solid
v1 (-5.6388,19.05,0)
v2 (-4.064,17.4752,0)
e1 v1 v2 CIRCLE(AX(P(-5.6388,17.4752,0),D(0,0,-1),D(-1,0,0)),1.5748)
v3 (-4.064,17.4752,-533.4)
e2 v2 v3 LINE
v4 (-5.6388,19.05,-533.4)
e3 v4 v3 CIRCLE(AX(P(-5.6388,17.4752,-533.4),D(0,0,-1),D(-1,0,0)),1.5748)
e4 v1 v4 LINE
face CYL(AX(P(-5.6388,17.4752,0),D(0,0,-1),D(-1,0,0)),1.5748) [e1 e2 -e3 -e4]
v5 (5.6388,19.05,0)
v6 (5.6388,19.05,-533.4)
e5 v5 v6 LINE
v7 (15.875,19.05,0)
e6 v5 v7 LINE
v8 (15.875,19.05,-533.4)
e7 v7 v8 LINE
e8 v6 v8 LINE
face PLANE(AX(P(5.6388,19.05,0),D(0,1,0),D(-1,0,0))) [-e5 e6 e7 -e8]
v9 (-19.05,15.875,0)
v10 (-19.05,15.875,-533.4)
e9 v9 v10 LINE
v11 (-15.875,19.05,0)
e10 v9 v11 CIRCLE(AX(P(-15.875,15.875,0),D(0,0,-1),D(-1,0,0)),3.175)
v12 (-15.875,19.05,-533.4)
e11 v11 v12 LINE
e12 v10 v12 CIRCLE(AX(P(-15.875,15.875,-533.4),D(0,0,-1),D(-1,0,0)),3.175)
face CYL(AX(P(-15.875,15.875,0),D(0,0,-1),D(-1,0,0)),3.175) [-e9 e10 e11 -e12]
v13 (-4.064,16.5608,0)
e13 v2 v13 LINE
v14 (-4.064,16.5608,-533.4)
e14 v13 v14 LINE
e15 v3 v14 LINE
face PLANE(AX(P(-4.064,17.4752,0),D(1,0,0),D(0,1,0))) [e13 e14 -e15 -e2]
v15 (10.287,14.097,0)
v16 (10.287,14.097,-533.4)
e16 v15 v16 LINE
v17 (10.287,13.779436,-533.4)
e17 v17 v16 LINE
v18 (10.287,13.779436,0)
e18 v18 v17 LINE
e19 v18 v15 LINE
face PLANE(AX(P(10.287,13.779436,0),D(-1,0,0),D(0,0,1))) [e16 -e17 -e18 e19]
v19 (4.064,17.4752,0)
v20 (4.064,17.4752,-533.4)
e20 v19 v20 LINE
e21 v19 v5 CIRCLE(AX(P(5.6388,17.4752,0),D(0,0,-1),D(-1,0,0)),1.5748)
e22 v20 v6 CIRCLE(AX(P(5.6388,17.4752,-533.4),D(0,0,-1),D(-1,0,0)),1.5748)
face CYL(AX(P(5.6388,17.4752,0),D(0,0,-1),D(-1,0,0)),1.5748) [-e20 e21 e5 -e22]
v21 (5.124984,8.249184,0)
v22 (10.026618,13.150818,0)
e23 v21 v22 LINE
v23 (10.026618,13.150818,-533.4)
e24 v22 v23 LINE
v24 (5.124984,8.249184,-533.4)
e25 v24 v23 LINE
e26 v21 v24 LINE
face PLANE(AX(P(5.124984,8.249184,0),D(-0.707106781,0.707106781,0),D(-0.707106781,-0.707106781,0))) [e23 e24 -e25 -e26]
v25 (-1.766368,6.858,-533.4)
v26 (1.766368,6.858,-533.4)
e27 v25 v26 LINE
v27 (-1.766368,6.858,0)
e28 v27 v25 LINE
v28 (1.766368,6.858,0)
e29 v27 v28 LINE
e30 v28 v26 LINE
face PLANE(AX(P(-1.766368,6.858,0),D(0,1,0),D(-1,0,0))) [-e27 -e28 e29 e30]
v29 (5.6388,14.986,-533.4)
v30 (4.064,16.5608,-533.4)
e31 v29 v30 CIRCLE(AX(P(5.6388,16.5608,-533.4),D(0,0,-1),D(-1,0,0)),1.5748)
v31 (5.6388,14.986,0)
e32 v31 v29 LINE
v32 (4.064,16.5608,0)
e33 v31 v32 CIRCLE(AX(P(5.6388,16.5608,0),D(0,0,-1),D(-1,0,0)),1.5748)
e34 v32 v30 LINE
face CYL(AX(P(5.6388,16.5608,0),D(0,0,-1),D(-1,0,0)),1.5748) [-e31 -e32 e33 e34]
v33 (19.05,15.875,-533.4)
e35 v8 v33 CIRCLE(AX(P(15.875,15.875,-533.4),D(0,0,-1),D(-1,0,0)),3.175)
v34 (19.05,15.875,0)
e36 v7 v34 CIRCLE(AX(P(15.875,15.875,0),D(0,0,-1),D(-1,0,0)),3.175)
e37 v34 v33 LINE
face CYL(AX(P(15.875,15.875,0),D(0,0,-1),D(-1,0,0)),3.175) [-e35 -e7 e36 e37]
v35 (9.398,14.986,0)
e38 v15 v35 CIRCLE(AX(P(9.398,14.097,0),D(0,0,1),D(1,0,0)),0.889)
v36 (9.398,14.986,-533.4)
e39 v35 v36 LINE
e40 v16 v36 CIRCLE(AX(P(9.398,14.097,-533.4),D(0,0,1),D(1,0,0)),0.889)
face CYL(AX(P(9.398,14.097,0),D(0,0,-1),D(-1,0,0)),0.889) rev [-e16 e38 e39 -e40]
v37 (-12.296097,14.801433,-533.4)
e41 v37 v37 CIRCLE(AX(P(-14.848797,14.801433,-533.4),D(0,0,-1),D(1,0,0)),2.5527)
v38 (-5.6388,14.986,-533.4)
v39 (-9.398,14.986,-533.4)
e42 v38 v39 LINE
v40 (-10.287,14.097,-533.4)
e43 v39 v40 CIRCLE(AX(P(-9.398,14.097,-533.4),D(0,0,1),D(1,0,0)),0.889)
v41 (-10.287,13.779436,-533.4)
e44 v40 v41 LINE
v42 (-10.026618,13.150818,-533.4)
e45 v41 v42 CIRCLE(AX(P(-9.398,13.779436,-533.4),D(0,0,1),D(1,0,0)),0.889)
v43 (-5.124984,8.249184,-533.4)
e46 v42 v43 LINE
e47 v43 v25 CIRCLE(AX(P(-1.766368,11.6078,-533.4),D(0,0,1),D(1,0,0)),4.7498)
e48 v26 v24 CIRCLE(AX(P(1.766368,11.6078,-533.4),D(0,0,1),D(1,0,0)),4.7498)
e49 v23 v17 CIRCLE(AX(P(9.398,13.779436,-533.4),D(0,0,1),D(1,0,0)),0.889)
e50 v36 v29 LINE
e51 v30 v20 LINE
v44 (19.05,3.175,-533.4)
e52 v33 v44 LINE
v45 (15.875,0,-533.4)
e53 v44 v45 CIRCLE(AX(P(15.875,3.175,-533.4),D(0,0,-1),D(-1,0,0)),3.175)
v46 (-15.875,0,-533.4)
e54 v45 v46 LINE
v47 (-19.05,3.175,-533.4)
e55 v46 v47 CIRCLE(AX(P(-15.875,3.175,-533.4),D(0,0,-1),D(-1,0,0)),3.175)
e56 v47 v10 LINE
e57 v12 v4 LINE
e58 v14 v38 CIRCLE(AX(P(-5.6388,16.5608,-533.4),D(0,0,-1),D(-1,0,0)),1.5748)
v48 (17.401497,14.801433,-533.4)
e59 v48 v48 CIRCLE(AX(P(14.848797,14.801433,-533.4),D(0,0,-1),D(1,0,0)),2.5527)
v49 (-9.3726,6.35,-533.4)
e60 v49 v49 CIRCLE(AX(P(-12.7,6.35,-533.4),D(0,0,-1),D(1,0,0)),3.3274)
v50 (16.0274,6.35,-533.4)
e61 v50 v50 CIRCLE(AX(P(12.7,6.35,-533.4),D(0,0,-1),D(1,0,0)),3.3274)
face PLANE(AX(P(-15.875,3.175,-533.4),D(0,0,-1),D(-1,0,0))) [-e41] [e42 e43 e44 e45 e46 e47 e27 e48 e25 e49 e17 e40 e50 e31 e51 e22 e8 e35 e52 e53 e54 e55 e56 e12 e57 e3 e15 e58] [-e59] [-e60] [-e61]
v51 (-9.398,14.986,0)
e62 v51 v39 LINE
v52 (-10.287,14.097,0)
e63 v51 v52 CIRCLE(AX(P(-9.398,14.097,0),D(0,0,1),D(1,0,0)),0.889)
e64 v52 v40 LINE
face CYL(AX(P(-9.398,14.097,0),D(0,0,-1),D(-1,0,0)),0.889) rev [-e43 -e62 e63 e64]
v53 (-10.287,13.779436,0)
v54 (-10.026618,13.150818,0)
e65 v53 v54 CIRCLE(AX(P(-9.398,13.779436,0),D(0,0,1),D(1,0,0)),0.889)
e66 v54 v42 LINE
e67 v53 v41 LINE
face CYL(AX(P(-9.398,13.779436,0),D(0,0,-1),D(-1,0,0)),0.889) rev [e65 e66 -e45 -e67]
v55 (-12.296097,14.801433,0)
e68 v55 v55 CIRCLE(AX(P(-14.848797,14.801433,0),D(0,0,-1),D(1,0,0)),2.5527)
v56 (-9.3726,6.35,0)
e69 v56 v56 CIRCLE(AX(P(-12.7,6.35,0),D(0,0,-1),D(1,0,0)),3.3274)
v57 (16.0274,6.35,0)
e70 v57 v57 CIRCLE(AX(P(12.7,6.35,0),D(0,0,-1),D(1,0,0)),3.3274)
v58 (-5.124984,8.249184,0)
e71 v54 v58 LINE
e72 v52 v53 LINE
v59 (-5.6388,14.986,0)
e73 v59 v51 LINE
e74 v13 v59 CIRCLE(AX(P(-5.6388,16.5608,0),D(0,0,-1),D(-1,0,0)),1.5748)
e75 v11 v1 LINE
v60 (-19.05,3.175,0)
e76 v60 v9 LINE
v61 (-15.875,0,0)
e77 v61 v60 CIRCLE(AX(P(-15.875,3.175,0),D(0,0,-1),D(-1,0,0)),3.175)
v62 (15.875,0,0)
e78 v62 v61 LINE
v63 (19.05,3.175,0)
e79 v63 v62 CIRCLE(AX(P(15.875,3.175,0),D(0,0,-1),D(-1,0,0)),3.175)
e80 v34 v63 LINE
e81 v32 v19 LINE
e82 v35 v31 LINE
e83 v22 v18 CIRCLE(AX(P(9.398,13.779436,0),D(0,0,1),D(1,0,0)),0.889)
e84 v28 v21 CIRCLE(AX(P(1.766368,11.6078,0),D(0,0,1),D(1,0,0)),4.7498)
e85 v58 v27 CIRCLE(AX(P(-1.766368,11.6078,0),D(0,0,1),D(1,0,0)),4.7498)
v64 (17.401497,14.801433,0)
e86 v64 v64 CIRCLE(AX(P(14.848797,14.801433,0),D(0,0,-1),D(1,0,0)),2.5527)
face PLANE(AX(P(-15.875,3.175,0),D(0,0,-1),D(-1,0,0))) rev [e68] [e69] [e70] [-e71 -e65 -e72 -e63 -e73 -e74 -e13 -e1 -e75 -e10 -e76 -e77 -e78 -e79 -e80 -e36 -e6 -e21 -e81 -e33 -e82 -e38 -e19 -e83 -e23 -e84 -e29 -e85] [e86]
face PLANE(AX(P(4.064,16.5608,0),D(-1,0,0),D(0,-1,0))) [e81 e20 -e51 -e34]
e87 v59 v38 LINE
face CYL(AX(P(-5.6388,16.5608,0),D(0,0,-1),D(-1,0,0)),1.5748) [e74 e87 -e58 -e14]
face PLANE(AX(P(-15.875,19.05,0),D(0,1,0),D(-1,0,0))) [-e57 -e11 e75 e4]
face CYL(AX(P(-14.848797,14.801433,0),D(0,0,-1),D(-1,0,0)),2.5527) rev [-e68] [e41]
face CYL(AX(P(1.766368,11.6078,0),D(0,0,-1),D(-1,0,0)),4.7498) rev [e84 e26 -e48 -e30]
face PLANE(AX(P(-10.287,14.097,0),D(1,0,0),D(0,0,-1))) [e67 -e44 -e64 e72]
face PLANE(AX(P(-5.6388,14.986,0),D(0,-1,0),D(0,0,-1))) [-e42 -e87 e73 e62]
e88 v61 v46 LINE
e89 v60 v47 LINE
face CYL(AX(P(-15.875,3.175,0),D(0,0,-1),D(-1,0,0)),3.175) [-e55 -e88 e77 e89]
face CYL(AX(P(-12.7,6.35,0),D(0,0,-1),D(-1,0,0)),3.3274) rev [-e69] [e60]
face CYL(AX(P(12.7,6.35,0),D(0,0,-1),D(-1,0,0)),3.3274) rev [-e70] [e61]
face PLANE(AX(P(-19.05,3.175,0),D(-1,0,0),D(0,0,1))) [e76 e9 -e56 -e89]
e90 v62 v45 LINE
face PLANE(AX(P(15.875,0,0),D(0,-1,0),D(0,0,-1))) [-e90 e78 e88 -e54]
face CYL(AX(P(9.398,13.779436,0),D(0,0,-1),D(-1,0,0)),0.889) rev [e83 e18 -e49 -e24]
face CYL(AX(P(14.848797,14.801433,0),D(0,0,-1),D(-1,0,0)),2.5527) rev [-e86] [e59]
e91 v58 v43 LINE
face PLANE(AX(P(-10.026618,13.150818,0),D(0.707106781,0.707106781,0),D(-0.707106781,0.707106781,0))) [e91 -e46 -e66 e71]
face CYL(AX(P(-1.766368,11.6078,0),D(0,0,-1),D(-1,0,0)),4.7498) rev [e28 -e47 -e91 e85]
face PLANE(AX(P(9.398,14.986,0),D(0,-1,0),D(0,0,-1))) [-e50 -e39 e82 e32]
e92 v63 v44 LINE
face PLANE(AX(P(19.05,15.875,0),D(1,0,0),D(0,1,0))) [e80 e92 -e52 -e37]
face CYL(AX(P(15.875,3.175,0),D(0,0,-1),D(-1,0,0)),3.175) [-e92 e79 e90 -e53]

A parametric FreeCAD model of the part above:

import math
import FreeCAD as App
import Part
import Sketcher

V = App.Vector
Q = App.Units.Quantity

doc = App.newDocument("Part")
body = doc.addObject("PartDesign::Body", "Body")

# Sketch on XY plane
sketch1 = body.newObject("Sketcher::SketchObject", "Sketch")
sketch1.AttachmentSupport = (doc.getObject("XY_Plane"), [""])
sketch1.MapMode = "FlatFace"
sketch1.AttachmentOffset = App.Placement(V(0, 0, -21 * 25.4), App.Rotation())
sketch1.addGeometry(Part.LineSegment(V(-19.05, 3.17, 0), V(-19.05, 15.88, 0)), False)
sketch1.addGeometry(Part.ArcOfCircle(Part.Circle(V(-15.87, 15.87, 0), V(0, 0, 1), 3.18), math.radians(90), math.radians(180)), False)
sketch1.addGeometry(Part.LineSegment(V(-15.88, 19.05, 0), V(-5.64, 19.05, 0)), False)
sketch1.addGeometry(Part.ArcOfCircle(Part.Circle(V(-5.64, 17.48, 0), V(0, 0, 1), 1.57), math.radians(0), math.radians(90)), False)
sketch1.addGeometry(Part.LineSegment(V(-4.06, 17.48, 0), V(-4.06, 16.56, 0)), False)
sketch1.addGeometry(Part.ArcOfCircle(Part.Circle(V(-5.64, 16.56, 0), V(0, 0, 1), 1.57), math.radians(-90), math.radians(0)), False)
sketch1.addGeometry(Part.LineSegment(V(-5.64, 14.99, 0), V(-9.4, 14.99, 0)), False)
sketch1.addGeometry(Part.ArcOfCircle(Part.Circle(V(-9.4, 14.1, 0), V(0, 0, 1), 0.89), math.radians(90), math.radians(180)), False)
sketch1.addGeometry(Part.LineSegment(V(-10.29, 14.1, 0), V(-10.29, 13.78, 0)), False)
sketch1.addGeometry(Part.ArcOfCircle(Part.Circle(V(-9.4, 13.78, 0), V(0, 0, 1), 0.89), math.radians(-180), math.radians(-135)), False)
sketch1.addGeometry(Part.LineSegment(V(-10.03, 13.15, 0), V(-5.12, 8.25, 0)), False)
sketch1.addGeometry(Part.ArcOfCircle(Part.Circle(V(-1.77, 11.61, 0), V(0, 0, 1), 4.75), math.radians(-135), math.radians(-90)), False)
sketch1.addGeometry(Part.LineSegment(V(-1.77, 6.86, 0), V(1.77, 6.86, 0)), False)
sketch1.addGeometry(Part.ArcOfCircle(Part.Circle(V(1.77, 11.61, 0), V(0, 0, 1), 4.75), math.radians(-90), math.radians(-45)), False)
sketch1.addGeometry(Part.LineSegment(V(5.12, 8.25, 0), V(10.03, 13.15, 0)), False)
sketch1.addGeometry(Part.ArcOfCircle(Part.Circle(V(9.4, 13.78, 0), V(0, 0, 1), 0.89), math.radians(-45), math.radians(0)), False)
sketch1.addGeometry(Part.LineSegment(V(10.29, 13.78, 0), V(10.29, 14.1, 0)), False)
sketch1.addGeometry(Part.ArcOfCircle(Part.Circle(V(9.4, 14.1, 0), V(0, 0, 1), 0.89), math.radians(0), math.radians(90)), False)
sketch1.addGeometry(Part.LineSegment(V(9.4, 14.99, 0), V(5.64, 14.99, 0)), False)
sketch1.addGeometry(Part.ArcOfCircle(Part.Circle(V(5.64, 16.56, 0), V(0, 0, 1), 1.57), math.radians(180), math.radians(270)), False)
sketch1.addGeometry(Part.LineSegment(V(4.06, 16.56, 0), V(4.06, 17.48, 0)), False)
sketch1.addGeometry(Part.ArcOfCircle(Part.Circle(V(5.64, 17.48, 0), V(0, 0, 1), 1.57), math.radians(90), math.radians(180)), False)
sketch1.addGeometry(Part.LineSegment(V(5.64, 19.05, 0), V(15.88, 19.05, 0)), False)
sketch1.addGeometry(Part.ArcOfCircle(Part.Circle(V(15.87, 15.87, 0), V(0, 0, 1), 3.18), math.radians(0), math.radians(90)), False)
sketch1.addGeometry(Part.LineSegment(V(19.05, 15.88, 0), V(19.05, 3.17, 0)), False)
sketch1.addGeometry(Part.ArcOfCircle(Part.Circle(V(15.87, 3.18, 0), V(0, 0, 1), 3.18), math.radians(-90), math.radians(0)), False)
sketch1.addGeometry(Part.LineSegment(V(15.88, 0, 0), V(-15.88, 0, 0)), False)
sketch1.addGeometry(Part.ArcOfCircle(Part.Circle(V(-15.87, 3.18, 0), V(0, 0, 1), 3.18), math.radians(-180), math.radians(-90)), False)
sketch1.addGeometry(Part.Circle(V(12.7, 6.35, 0), V(0, 0, 1), 3.33), False)
sketch1.addGeometry(Part.Circle(V(-12.7, 6.35, 0), V(0, 0, 1), 3.33), False)
sketch1.addGeometry(Part.Circle(V(14.85, 14.8, 0), V(0, 0, 1), 2.55), False)
sketch1.addGeometry(Part.Circle(V(-14.85, 14.8, 0), V(0, 0, 1), 2.55), False)
sketch1.addConstraint(Sketcher.Constraint("Tangent", 0, 2, 1, 2))
sketch1.addConstraint(Sketcher.Constraint("Tangent", 1, 1, 2, 1))
sketch1.addConstraint(Sketcher.Constraint("Tangent", 2, 2, 3, 2))
sketch1.addConstraint(Sketcher.Constraint("Tangent", 3, 1, 4, 1))
sketch1.addConstraint(Sketcher.Constraint("Tangent", 4, 2, 5, 2))
sketch1.addConstraint(Sketcher.Constraint("Tangent", 5, 1, 6, 1))
sketch1.addConstraint(Sketcher.Constraint("Tangent", 6, 2, 7, 1))
sketch1.addConstraint(Sketcher.Constraint("Tangent", 7, 2, 8, 1))
sketch1.addConstraint(Sketcher.Constraint("Tangent", 8, 2, 9, 1))
sketch1.addConstraint(Sketcher.Constraint("Tangent", 9, 2, 10, 1))
sketch1.addConstraint(Sketcher.Constraint("Tangent", 10, 2, 11, 1))
sketch1.addConstraint(Sketcher.Constraint("Tangent", 11, 2, 12, 1))
sketch1.addConstraint(Sketcher.Constraint("Tangent", 12, 2, 13, 1))
sketch1.addConstraint(Sketcher.Constraint("Tangent", 13, 2, 14, 1))
sketch1.addConstraint(Sketcher.Constraint("Tangent", 14, 2, 15, 1))
sketch1.addConstraint(Sketcher.Constraint("Tangent", 15, 2, 16, 1))
sketch1.addConstraint(Sketcher.Constraint("Tangent", 16, 2, 17, 1))
sketch1.addConstraint(Sketcher.Constraint("Tangent", 17, 2, 18, 1))
sketch1.addConstraint(Sketcher.Constraint("Tangent", 18, 2, 19, 2))
sketch1.addConstraint(Sketcher.Constraint("Tangent", 19, 1, 20, 1))
sketch1.addConstraint(Sketcher.Constraint("Tangent", 20, 2, 21, 2))
sketch1.addConstraint(Sketcher.Constraint("Tangent", 21, 1, 22, 1))
sketch1.addConstraint(Sketcher.Constraint("Tangent", 22, 2, 23, 2))
sketch1.addConstraint(Sketcher.Constraint("Tangent", 23, 1, 24, 1))
sketch1.addConstraint(Sketcher.Constraint("Tangent", 24, 2, 25, 2))
sketch1.addConstraint(Sketcher.Constraint("Tangent", 25, 1, 26, 1))
sketch1.addConstraint(Sketcher.Constraint("Tangent", 26, 2, 27, 2))
sketch1.addConstraint(Sketcher.Constraint("Tangent", 27, 1, 0, 1))
sketch1.addConstraint(Sketcher.Constraint("Vertical", 0))
sketch1.addConstraint(Sketcher.Constraint("Horizontal", 2))
sketch1.addConstraint(Sketcher.Constraint("Vertical", 4))
sketch1.addConstraint(Sketcher.Constraint("Horizontal", 6))
sketch1.addConstraint(Sketcher.Constraint("Vertical", 8))
sketch1.addConstraint(Sketcher.Constraint("Horizontal", 12))
sketch1.addConstraint(Sketcher.Constraint("Vertical", 16))
sketch1.addConstraint(Sketcher.Constraint("Horizontal", 18))
sketch1.addConstraint(Sketcher.Constraint("Vertical", 20))
sketch1.addConstraint(Sketcher.Constraint("Horizontal", 22))
sketch1.addConstraint(Sketcher.Constraint("Vertical", 24))
sketch1.addConstraint(Sketcher.Constraint("Horizontal", 26))
sketch1.addConstraint(Sketcher.Constraint("Equal", 3, 5))
sketch1.addConstraint(Sketcher.Constraint("Equal", 7, 9))
sketch1.addConstraint(Sketcher.Constraint("Equal", 11, 13))
sketch1.addConstraint(Sketcher.Constraint("Equal", 9, 15))
sketch1.addConstraint(Sketcher.Constraint("Equal", 15, 17))
sketch1.addConstraint(Sketcher.Constraint("Equal", 5, 19))
sketch1.addConstraint(Sketcher.Constraint("Equal", 19, 21))
sketch1.addConstraint(Sketcher.Constraint("Equal", 1, 23))
sketch1.addConstraint(Sketcher.Constraint("Equal", 23, 25))
sketch1.addConstraint(Sketcher.Constraint("Equal", 25, 27))
sketch1.addConstraint(Sketcher.Constraint("Equal", 28, 29))
sketch1.addConstraint(Sketcher.Constraint("Equal", 30, 31))
sketch1.addConstraint(Sketcher.Constraint("Symmetric", 25, 1, 26, 2, -1, 1))
sketch1.addConstraint(Sketcher.Constraint("Symmetric", 9, 3, 15, 3, -2))
sketch1.addConstraint(Sketcher.Constraint("Symmetric", 5, 3, 19, 3, -2))
sketch1.addConstraint(Sketcher.Constraint("Symmetric", 28, 3, 29, 3, -2))
sketch1.addConstraint(Sketcher.Constraint("Symmetric", 30, 3, 31, 3, -2))
sketch1.addConstraint(Sketcher.Constraint("Perpendicular", 10, 14))
sketch1.addConstraint(Sketcher.Constraint("Horizontal", 3, 3, 21, 3))
sketch1.addConstraint(Sketcher.Constraint("Horizontal", 10, 2, 13, 2))
sketch1.addConstraint(Sketcher.Constraint("Diameter", 28, Q("0.262 in")))
sketch1.addConstraint(Sketcher.Constraint("Diameter", 30, Q("0.201 in")))
sketch1.addConstraint(Sketcher.Constraint("DistanceY", 0, 1, 0, 2, Q("0.5 in")))
sketch1.addConstraint(Sketcher.Constraint("Radius", 1, Q("0.125 in")))
sketch1.addConstraint(Sketcher.Constraint("Radius", 3, Q("0.062 in")))
sketch1.addConstraint(Sketcher.Constraint("Radius", 7, Q("0.035 in")))
sketch1.addConstraint(Sketcher.Constraint("Radius", 11, Q("0.187 in")))
sketch1.addConstraint(Sketcher.Constraint("DistanceX", 26, 2, 26, 1, Q("1.25 in")))
sketch1.addConstraint(Sketcher.Constraint("DistanceX", -1, 1, 28, 3, Q("0.5 in")))
sketch1.addConstraint(Sketcher.Constraint("DistanceX", 2, 1, 2, 2, Q("0.403 in")))
sketch1.addConstraint(Sketcher.Constraint("DistanceX", 6, 2, 6, 1, Q("0.148 in")))
sketch1.addConstraint(Sketcher.Constraint("DistanceY", 4, 2, 4, 1, Q("0.036 in")))
sketch1.addConstraint(Sketcher.Constraint("DistanceY", -1, 1, 28, 3, Q("0.25 in")))
sketch1.addConstraint(Sketcher.Constraint("DistanceY", -1, 1, 11, 2, Q("0.27 in")))
sketch1.addConstraint(Sketcher.Constraint("DistanceX", 12, 1, 12, 2, Q("3.532737 mm")))
sketch1.addConstraint(Sketcher.Constraint("DistanceX", 14, 2, 30, 3, Q("4.822179 mm")))
sketch1.addConstraint(Sketcher.Constraint("DistanceY", -1, 1, 30, 3, Q("14.801433 mm")))
pad1 = body.newObject("PartDesign::Pad", "Pad")
pad1.Profile = sketch1
pad1.Length = Q("21 in")

doc.recompute()
